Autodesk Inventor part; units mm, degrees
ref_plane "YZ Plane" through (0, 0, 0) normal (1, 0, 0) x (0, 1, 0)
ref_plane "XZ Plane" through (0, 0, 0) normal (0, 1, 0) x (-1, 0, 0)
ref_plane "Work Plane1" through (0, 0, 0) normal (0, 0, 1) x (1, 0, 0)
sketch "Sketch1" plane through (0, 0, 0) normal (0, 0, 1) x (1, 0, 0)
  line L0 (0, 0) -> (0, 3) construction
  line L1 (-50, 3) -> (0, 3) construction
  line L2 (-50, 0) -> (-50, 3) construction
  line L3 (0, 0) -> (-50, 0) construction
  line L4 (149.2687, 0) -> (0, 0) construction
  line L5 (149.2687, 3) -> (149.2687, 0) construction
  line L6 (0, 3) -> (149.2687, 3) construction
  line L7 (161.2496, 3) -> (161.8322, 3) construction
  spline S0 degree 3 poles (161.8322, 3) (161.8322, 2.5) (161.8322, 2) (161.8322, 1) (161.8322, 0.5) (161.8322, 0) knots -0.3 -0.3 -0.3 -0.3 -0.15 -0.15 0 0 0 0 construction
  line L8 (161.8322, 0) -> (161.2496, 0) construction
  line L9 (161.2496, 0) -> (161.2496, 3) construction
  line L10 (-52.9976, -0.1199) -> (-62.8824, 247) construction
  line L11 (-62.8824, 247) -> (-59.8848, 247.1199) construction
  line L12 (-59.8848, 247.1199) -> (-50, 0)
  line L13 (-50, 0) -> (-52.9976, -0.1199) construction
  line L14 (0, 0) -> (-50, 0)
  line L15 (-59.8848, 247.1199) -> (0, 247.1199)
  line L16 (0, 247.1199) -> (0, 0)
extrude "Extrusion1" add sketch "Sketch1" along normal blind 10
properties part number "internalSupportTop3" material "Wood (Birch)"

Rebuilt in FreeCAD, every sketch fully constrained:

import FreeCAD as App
import Part
import Sketcher
from FreeCAD import Vector
Q = App.Units.Quantity


def add_polygon(sketch, points):
    """Adds a closed chain of lines whose ends are joined by coincident constraints."""
    first, n = sketch.GeometryCount, len(points)
    for a, b in zip(points, points[1:] + points[:1]):
        sketch.addGeometry(Part.LineSegment(App.Vector(*a, 0), App.Vector(*b, 0)), False)
    for i in range(n):
        sketch.addConstraint(Sketcher.Constraint("Coincident", first + i, 2, first + (i + 1) % n, 1))

doc = App.newDocument("Part")
params = doc.addObject("Spreadsheet::Sheet", "Params")
for row, (alias, value) in enumerate([
    ("sketch1_width", "50 mm"),
    ("sketch1_height", "247.12 mm"),
    ("pad1_length", "10 mm"),
], start=1):
    params.set(f"A{row}", alias)
    params.set(f"B{row}", "=" + value)
    params.setAlias(f"B{row}", alias)

body = doc.addObject("PartDesign::Body", "Body")

# Sketch on XY plane
sketch1 = doc.addObject("Sketcher::SketchObject", "Sketch")
body.addObject(sketch1)
sketch1.AttachmentSupport = (doc.XY_Plane, [""])
sketch1.MapMode = "FlatFace"
add_polygon(sketch1, [(0, 247), (-60, 247), (-50, 0), (0, 0)])  # lines 0-3
sketch1.addConstraint(Sketcher.Constraint("Horizontal", 0))
sketch1.addConstraint(Sketcher.Constraint("Horizontal", 2))
sketch1.addConstraint(Sketcher.Constraint("Vertical", 3))
sketch1.addConstraint(Sketcher.Constraint("Coincident", 2, 2, -1, 1))
sketch1.addConstraint(Sketcher.Constraint("DistanceX", 2, 1, 2, 2, Q("50 mm")))
sketch1.addConstraint(Sketcher.Constraint("DistanceY", 3, 1, 3, 2, Q("247.12 mm")))
sketch1.addConstraint(Sketcher.Constraint("Angle", 1, Q("-87.7094 deg")))
sketch1.setExpression("Constraints[8]", "Params.sketch1_width")
sketch1.setExpression("Constraints[9]", "Params.sketch1_height")
pad1 = doc.addObject("PartDesign::Pad", "Pad")
body.addObject(pad1)
pad1.Profile = sketch1
pad1.setExpression("Length", "Params.pad1_length")

doc.recompute()
